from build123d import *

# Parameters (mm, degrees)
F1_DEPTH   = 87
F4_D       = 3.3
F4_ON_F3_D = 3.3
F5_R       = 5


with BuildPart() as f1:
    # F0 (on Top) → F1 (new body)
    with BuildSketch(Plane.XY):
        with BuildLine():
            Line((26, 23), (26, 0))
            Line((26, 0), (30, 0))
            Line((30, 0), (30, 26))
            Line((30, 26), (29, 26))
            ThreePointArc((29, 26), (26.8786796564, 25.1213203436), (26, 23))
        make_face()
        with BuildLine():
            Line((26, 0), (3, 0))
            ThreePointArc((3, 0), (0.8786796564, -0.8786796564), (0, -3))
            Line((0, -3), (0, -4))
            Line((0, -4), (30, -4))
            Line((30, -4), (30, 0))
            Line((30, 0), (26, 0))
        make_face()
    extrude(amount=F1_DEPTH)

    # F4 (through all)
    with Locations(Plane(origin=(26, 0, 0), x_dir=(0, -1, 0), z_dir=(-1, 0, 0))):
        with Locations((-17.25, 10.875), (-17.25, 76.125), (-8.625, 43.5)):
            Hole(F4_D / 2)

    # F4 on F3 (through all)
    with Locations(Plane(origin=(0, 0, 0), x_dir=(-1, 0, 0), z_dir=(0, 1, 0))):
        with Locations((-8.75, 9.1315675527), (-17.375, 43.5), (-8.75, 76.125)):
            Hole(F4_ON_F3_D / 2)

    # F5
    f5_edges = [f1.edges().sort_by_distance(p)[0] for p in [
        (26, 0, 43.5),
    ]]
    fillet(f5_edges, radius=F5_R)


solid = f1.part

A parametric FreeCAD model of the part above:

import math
import FreeCAD as App
import Part
import Sketcher
Q = App.Units.Quantity


def edges_at(feature, points):
    """Names of the edges that pass closest to the given points."""
    edges = feature.Shape.Edges
    near = lambda p: min(range(len(edges)), key=lambda i: edges[i].distToShape(Part.Vertex(*p))[0])
    return sorted({f"Edge{near(p) + 1}" for p in points})

doc = App.newDocument("Part")
body = doc.addObject("PartDesign::Body", "Body")

sketch1 = doc.addObject("Sketcher::SketchObject", "Sketch")
body.addObject(sketch1)
sketch1.AttachmentSupport = (doc.XY_Plane, [""])
sketch1.MapMode = "FlatFace"
sketch1.addGeometry([
    Part.LineSegment(App.Vector(26, 23, 0), App.Vector(26, 0, 0)),
    Part.LineSegment(App.Vector(26, 0, 0), App.Vector(3, 0, 0)),
    Part.ArcOfCircle(Part.Circle(App.Vector(3, -3, 0), App.Vector(0, 0, 1), 3), math.radians(90), math.radians(180)),
    Part.LineSegment(App.Vector(0, -3, 0), App.Vector(0, -4, 0)),
    Part.LineSegment(App.Vector(0, -4, 0), App.Vector(30, -4, 0)),
    Part.LineSegment(App.Vector(30, -4, 0), App.Vector(30, 26, 0)),
    Part.LineSegment(App.Vector(30, 26, 0), App.Vector(29, 26, 0)),
    Part.ArcOfCircle(Part.Circle(App.Vector(29, 23, 0), App.Vector(0, 0, 1), 3), math.radians(90), math.radians(180)),
], False)
sketch1.addConstraint([
    Sketcher.Constraint("Coincident", 0, 2, 1, 1),
    Sketcher.Constraint("Tangent", 1, 2, 2, 1),
    Sketcher.Constraint("Tangent", 2, 2, 3, 1),
    Sketcher.Constraint("Coincident", 3, 2, 4, 1),
    Sketcher.Constraint("Coincident", 4, 2, 5, 1),
    Sketcher.Constraint("Coincident", 5, 2, 6, 1),
    Sketcher.Constraint("Tangent", 6, 2, 7, 1),
    Sketcher.Constraint("Tangent", 7, 2, 0, 1),
    Sketcher.Constraint("Vertical", 0),
    Sketcher.Constraint("Horizontal", 1),
    Sketcher.Constraint("Vertical", 3),
    Sketcher.Constraint("Horizontal", 4),
    Sketcher.Constraint("Vertical", 5),
    Sketcher.Constraint("Horizontal", 6),
    Sketcher.Constraint("Equal", 2, 7),
    Sketcher.Constraint("PointOnObject", 0, 2, -1),
    Sketcher.Constraint("PointOnObject", 2, 2, -2),
    Sketcher.Constraint("Equal", 1, 0),
    Sketcher.Constraint("Equal", 6, 3),
    Sketcher.Constraint("Radius", 2, Q("3 mm")),
    Sketcher.Constraint("DistanceX", 1, 2, 1, 1, Q("23 mm")),
    Sketcher.Constraint("DistanceX", 4, 1, 4, 2, Q("30 mm")),
])
pad1 = doc.addObject("PartDesign::Pad", "Pad")
body.addObject(pad1)
pad1.Profile = sketch1
pad1.Length = 87

sketch2 = doc.addObject("Sketcher::SketchObject", "Sketch001")
body.addObject(sketch2)
sketch2.AttachmentSupport = (doc.YZ_Plane, [""])
sketch2.MapMode = "FlatFace"
sketch2.AttachmentOffset = App.Placement(App.Vector(0, 0, 26), App.Rotation())
sketch2.addGeometry([
    Part.Circle(App.Vector(17.2, 10.9, 0), App.Vector(0, 0, 1), 1.6),
    Part.Circle(App.Vector(17.2, 76.1, 0), App.Vector(0, 0, 1), 1.6),
    Part.Circle(App.Vector(8.6, 43.5, 0), App.Vector(0, 0, 1), 1.6),
], False)
sketch2.addConstraint([
    Sketcher.Constraint("Equal", 0, 1),
    Sketcher.Constraint("Equal", 1, 2),
    Sketcher.Constraint("Vertical", 0, 3, 1, 3),
    Sketcher.Constraint("Diameter", 0, Q("3.3 mm")),
    Sketcher.Constraint("DistanceY", -1, 1, 2, 3, Q("43.5 mm")),
    Sketcher.Constraint("DistanceX", -1, 1, 0, 3, Q("17.25 mm")),
    Sketcher.Constraint("DistanceY", 0, 3, 1, 3, Q("65.25 mm")),
    Sketcher.Constraint("DistanceY", -1, 1, 0, 3, Q("10.875 mm")),
    Sketcher.Constraint("DistanceX", -1, 1, 2, 3, Q("8.625 mm")),
])
doc.recompute()
hole = doc.addObject("PartDesign::Hole", "Hole")
body.addObject(hole)
hole.Profile = sketch2
hole.ThreadType = "None"
hole.Diameter = 3.3
hole.DepthType = "ThroughAll"
hole.Reversed = True

sketch3 = doc.addObject("Sketcher::SketchObject", "Sketch002")
body.addObject(sketch3)
sketch3.AttachmentSupport = (doc.XZ_Plane, [""])
sketch3.MapMode = "FlatFace"
sketch3.addGeometry([
    Part.Circle(App.Vector(8.8, 9.1, 0), App.Vector(0, 0, 1), 1.6),
    Part.Circle(App.Vector(17.4, 43.5, 0), App.Vector(0, 0, 1), 1.6),
    Part.Circle(App.Vector(8.8, 76.1, 0), App.Vector(0, 0, 1), 1.6),
], False)
sketch3.addConstraint([
    Sketcher.Constraint("Equal", 0, 1),
    Sketcher.Constraint("Equal", 1, 2),
    Sketcher.Constraint("Vertical", 0, 3, 2, 3),
    Sketcher.Constraint("Diameter", 0, Q("3.3 mm")),
    Sketcher.Constraint("DistanceY", -1, 1, 1, 3, Q("43.5 mm")),
    Sketcher.Constraint("DistanceX", -1, 1, 0, 3, Q("8.75 mm")),
    Sketcher.Constraint("DistanceX", -1, 1, 1, 3, Q("17.375 mm")),
    Sketcher.Constraint("DistanceY", -1, 1, 2, 3, Q("76.125 mm")),
    Sketcher.Constraint("DistanceY", -1, 1, 0, 3, Q("9.131568 mm")),
])
doc.recompute()
hole2 = doc.addObject("PartDesign::Hole", "Hole001")
body.addObject(hole2)
hole2.Profile = sketch3
hole2.ThreadType = "None"
hole2.Diameter = 3.3
hole2.DepthType = "ThroughAll"
hole2.Reversed = True
doc.recompute()

fillet = doc.addObject("PartDesign::Fillet", "Fillet")
body.addObject(fillet)
fillet.Base = (hole2, edges_at(hole2, [(26, 0, 43.5)]))
fillet.Radius = 5

doc.recompute()
